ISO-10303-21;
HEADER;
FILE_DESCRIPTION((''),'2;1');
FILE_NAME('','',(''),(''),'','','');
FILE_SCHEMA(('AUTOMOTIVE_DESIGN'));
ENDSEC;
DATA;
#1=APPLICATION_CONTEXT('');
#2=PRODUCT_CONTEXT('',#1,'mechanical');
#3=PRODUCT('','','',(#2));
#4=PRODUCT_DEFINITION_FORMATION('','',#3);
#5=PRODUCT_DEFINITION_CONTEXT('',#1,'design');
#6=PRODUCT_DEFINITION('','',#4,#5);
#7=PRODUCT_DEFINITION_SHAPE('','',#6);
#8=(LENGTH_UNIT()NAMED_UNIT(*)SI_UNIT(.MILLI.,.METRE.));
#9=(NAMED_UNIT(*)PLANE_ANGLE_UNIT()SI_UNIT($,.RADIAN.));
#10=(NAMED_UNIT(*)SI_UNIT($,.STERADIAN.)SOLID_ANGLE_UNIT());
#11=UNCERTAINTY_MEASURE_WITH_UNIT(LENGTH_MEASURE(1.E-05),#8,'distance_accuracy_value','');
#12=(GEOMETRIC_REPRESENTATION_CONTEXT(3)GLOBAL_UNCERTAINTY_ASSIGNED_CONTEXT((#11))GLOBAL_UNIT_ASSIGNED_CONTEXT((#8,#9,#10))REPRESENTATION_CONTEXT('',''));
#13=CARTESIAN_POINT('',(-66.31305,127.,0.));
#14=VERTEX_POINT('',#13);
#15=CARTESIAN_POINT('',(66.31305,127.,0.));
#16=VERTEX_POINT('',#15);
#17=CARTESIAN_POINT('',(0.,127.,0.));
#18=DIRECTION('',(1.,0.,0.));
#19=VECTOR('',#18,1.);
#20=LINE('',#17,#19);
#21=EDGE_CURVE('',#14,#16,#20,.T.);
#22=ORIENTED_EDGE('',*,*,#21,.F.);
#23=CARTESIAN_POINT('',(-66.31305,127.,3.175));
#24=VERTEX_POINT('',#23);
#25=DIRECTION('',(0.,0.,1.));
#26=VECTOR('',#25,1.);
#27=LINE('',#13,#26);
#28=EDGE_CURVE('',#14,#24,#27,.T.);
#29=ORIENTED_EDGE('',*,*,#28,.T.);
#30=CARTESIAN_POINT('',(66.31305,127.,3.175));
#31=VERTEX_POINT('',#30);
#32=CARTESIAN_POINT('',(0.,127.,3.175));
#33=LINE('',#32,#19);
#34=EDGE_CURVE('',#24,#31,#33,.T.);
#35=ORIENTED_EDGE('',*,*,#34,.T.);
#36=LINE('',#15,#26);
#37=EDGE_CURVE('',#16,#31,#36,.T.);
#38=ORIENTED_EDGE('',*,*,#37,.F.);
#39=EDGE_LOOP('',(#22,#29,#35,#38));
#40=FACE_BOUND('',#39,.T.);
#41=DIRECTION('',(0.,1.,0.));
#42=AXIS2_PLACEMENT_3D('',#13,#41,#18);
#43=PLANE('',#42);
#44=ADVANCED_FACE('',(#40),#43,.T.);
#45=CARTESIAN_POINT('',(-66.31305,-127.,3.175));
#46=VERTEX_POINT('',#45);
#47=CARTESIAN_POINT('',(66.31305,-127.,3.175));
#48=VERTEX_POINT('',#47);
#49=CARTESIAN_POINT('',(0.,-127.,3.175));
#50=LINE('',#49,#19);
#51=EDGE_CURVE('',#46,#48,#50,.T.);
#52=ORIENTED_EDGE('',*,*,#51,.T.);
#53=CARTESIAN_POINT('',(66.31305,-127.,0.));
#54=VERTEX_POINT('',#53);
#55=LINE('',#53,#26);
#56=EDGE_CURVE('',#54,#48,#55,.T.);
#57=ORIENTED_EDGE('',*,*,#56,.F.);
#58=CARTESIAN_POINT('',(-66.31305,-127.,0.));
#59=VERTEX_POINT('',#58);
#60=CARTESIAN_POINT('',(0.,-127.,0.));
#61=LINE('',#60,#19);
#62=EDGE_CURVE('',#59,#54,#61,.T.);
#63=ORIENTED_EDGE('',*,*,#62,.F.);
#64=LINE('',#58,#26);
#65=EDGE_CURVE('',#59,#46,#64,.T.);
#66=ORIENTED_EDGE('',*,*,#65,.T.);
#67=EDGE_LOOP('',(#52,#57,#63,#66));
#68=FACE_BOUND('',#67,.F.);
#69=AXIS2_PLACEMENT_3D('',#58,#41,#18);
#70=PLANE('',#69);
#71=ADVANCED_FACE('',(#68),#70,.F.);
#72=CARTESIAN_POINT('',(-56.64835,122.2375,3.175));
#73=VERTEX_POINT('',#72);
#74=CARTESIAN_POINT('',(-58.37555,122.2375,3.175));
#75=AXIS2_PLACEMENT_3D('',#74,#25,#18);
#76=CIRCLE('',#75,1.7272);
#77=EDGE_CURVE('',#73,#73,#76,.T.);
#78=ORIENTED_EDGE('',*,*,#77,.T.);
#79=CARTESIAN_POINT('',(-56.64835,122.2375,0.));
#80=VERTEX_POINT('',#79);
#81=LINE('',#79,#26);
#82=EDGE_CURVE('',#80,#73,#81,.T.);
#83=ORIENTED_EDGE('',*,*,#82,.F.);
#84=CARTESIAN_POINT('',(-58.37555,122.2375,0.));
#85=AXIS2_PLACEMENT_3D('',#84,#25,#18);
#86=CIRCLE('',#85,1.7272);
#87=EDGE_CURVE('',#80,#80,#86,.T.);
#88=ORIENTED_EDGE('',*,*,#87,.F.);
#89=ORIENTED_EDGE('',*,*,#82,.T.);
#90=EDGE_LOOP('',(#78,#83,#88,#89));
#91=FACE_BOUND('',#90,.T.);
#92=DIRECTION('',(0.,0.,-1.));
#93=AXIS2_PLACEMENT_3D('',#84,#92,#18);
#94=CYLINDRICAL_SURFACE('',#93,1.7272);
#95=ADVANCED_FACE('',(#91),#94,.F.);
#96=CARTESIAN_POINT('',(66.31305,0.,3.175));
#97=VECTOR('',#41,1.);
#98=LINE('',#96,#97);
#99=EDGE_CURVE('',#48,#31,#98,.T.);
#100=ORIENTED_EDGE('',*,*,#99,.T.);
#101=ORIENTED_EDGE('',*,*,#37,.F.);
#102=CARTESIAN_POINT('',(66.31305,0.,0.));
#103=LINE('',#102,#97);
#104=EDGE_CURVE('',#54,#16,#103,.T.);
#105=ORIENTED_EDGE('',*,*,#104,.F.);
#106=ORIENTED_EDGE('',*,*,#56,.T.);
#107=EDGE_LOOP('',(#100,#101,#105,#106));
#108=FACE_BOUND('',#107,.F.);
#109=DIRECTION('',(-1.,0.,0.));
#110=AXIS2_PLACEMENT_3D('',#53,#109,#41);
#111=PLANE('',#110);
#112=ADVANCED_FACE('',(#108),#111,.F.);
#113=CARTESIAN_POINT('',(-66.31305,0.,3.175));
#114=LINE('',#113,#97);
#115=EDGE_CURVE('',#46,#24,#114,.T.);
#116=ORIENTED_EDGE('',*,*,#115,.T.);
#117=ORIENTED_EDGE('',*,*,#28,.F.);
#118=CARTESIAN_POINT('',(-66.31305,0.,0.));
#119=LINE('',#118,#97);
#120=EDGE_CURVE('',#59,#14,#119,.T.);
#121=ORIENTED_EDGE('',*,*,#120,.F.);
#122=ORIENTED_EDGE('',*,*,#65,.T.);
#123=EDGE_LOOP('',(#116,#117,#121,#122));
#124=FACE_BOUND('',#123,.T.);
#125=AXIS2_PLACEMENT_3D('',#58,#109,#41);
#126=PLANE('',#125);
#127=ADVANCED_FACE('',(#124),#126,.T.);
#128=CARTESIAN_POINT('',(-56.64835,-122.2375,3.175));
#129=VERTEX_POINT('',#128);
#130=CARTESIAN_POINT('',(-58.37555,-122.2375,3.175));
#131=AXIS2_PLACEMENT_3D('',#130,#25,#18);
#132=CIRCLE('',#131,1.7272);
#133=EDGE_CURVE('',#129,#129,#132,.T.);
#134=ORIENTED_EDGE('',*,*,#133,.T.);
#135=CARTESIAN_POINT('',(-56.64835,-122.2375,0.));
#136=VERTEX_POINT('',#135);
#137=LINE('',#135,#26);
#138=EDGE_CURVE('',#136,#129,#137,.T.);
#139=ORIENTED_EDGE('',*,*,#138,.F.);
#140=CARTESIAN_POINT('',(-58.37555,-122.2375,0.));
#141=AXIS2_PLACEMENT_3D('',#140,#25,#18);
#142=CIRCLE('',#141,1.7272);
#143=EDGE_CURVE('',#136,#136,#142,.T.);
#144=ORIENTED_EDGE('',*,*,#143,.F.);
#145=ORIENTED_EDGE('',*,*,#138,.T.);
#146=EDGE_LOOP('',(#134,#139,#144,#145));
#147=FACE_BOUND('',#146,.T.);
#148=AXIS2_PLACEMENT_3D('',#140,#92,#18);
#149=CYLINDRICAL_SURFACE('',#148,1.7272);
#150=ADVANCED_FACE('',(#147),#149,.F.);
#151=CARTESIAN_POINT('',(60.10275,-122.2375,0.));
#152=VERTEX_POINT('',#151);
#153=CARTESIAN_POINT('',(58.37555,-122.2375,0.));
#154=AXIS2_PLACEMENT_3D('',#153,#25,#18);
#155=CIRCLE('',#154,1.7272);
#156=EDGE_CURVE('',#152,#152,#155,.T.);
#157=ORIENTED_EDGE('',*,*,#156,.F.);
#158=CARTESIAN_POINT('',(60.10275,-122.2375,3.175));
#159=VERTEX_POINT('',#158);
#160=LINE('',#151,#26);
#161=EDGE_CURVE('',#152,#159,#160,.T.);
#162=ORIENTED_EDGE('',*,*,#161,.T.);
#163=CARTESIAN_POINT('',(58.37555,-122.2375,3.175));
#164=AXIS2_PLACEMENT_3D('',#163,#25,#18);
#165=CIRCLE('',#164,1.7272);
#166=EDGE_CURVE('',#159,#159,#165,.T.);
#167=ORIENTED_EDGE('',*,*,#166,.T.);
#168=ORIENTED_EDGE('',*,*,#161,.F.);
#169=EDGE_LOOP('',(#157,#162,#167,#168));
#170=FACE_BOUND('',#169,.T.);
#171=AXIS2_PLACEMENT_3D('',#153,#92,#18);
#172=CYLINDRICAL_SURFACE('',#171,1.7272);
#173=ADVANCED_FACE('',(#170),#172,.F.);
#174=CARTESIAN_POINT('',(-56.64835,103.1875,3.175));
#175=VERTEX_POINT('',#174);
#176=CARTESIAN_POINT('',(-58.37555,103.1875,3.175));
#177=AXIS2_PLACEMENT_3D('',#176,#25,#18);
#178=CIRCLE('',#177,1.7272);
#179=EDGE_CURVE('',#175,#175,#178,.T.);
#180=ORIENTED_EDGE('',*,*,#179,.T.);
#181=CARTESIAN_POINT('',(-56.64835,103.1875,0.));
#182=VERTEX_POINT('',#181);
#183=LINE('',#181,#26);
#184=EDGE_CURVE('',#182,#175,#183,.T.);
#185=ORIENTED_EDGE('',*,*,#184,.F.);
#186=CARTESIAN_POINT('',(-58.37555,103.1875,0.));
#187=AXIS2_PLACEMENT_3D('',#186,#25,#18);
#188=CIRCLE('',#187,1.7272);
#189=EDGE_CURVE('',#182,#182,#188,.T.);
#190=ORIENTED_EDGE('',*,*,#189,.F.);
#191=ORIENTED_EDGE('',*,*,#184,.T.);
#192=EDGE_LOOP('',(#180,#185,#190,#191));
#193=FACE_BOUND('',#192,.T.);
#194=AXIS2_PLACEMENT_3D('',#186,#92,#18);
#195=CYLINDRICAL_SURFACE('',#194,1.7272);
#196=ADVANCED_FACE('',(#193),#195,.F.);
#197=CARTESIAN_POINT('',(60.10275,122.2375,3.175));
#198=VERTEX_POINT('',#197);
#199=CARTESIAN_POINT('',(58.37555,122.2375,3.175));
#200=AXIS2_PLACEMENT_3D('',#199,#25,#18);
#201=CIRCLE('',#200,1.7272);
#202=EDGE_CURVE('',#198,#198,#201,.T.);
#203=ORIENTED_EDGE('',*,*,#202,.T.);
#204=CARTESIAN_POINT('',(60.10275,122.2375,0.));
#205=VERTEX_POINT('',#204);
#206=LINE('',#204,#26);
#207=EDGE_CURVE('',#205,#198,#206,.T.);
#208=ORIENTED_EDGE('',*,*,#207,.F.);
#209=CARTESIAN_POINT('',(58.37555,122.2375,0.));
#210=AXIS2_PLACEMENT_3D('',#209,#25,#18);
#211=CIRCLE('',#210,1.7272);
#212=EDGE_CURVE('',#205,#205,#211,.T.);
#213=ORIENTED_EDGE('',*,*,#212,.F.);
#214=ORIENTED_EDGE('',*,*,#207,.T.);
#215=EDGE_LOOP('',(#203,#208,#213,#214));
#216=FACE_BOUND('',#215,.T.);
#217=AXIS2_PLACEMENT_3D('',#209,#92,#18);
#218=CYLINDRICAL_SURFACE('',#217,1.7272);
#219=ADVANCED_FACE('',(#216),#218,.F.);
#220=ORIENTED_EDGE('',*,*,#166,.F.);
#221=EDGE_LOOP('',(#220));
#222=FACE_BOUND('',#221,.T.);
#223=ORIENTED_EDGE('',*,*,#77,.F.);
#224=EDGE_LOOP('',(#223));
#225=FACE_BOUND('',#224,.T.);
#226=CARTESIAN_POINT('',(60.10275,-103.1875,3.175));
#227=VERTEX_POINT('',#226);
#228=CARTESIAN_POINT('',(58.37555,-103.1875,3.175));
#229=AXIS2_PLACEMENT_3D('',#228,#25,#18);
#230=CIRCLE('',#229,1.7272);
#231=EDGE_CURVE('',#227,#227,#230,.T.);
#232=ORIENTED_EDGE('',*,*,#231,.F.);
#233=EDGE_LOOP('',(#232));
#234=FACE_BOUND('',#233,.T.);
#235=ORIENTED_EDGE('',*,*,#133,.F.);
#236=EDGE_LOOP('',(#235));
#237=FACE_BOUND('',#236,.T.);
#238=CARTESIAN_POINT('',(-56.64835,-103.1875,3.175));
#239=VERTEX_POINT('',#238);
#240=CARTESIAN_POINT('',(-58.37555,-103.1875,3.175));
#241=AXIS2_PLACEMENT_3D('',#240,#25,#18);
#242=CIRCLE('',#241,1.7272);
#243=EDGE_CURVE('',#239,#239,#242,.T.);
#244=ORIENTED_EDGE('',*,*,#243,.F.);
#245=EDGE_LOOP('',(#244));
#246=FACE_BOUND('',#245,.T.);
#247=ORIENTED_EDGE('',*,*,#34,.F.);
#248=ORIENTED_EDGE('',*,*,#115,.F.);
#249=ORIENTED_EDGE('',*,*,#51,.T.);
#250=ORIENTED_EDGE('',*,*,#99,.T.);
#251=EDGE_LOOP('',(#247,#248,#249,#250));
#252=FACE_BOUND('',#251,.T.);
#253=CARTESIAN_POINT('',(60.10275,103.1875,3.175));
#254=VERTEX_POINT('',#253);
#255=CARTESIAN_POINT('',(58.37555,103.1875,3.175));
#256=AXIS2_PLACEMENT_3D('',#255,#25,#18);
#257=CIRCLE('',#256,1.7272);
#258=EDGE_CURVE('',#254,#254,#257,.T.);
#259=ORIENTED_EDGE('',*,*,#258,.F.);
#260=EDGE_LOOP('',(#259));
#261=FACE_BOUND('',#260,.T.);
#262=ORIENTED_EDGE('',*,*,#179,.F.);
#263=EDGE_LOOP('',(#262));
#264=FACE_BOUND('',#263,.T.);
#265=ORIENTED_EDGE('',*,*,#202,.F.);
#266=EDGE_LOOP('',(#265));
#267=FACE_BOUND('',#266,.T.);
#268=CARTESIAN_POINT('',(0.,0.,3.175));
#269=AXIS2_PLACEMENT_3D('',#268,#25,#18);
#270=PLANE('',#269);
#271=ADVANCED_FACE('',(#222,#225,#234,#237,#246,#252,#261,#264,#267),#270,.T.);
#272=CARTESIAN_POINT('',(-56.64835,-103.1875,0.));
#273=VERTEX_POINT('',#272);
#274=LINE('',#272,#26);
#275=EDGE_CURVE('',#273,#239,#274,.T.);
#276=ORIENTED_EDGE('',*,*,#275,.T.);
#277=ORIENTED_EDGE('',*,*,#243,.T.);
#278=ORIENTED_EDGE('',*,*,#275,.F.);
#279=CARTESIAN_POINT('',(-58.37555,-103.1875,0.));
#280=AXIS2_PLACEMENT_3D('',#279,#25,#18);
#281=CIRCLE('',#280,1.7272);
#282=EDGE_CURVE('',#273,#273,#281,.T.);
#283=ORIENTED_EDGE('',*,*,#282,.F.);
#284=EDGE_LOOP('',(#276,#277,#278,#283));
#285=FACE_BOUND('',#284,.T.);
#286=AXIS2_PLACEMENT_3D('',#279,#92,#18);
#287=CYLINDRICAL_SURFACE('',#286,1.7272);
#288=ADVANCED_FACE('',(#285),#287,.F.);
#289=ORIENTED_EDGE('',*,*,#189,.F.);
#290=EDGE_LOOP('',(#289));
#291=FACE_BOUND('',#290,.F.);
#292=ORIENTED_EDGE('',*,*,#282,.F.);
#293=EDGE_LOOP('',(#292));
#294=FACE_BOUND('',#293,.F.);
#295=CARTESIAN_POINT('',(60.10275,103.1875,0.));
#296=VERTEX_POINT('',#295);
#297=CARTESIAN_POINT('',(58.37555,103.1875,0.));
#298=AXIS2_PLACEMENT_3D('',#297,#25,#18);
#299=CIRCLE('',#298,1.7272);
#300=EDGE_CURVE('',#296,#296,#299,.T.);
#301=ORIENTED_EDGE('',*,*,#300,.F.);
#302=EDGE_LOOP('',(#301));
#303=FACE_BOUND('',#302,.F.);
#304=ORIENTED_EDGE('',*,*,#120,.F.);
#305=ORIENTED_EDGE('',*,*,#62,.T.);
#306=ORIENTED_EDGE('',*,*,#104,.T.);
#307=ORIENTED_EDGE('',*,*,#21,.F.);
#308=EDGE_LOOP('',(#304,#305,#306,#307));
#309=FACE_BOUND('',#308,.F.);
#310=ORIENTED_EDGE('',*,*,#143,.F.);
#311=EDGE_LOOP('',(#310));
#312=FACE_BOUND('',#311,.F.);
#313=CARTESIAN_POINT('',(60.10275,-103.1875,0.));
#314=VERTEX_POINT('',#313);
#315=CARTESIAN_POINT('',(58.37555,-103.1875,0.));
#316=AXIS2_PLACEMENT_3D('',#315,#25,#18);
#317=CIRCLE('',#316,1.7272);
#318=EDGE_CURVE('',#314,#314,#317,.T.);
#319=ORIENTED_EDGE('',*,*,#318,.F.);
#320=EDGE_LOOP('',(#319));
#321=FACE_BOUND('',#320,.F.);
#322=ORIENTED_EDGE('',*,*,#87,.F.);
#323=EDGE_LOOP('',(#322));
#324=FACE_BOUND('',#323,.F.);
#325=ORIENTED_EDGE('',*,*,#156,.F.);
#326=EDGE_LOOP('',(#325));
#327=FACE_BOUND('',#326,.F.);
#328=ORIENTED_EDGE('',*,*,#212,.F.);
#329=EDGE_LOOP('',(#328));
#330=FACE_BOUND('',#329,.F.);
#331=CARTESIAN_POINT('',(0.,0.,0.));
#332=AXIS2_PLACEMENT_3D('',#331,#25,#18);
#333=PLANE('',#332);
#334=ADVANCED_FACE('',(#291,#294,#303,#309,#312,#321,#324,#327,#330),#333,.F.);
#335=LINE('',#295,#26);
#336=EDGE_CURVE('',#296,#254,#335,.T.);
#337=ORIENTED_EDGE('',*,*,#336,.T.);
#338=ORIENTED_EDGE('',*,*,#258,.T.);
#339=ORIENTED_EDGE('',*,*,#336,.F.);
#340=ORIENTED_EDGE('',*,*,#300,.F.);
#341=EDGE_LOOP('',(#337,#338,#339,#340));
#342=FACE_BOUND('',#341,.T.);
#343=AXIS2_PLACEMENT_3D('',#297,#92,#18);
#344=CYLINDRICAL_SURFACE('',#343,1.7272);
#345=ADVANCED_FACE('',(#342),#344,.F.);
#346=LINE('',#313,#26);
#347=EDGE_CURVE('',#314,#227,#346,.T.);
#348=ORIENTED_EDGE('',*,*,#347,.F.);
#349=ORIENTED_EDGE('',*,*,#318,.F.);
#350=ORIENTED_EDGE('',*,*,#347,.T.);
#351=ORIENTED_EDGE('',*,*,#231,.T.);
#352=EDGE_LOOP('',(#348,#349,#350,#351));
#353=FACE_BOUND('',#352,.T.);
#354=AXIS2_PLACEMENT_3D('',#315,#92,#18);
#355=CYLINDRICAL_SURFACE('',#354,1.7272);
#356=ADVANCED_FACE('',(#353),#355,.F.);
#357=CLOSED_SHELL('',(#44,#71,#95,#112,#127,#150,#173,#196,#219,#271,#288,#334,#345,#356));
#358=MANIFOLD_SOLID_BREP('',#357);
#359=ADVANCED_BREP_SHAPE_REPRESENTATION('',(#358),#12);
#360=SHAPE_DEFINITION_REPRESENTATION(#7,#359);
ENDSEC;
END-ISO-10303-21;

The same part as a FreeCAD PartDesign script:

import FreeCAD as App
import Part
import Sketcher

V = App.Vector
Q = App.Units.Quantity


def add_polygon(sketch, points):
    """Adds a closed chain of lines whose ends are joined by coincident constraints."""
    first, n = sketch.GeometryCount, len(points)
    for a, b in zip(points, points[1:] + points[:1]):
        sketch.addGeometry(Part.LineSegment(App.Vector(*a, 0), App.Vector(*b, 0)), False)
    for i in range(n):
        sketch.addConstraint(Sketcher.Constraint("Coincident", first + i, 2, first + (i + 1) % n, 1))

doc = App.newDocument("Part")
params = doc.addObject("Spreadsheet::Sheet", "Params")
for row, (alias, value) in enumerate([
    ("sketch1_height", "10 in"),
    ("sketch1_diameter", "0.136 in"),
    ("pad1_length", "0.125 in"),
], start=1):
    params.set(f"A{row}", alias)
    params.set(f"B{row}", "=" + value)
    params.setAlias(f"B{row}", alias)

body = doc.addObject("PartDesign::Body", "Body")

# Sketch on XY plane
sketch1 = body.newObject("Sketcher::SketchObject", "Sketch")
sketch1.AttachmentSupport = (doc.getObject("XY_Plane"), [""])
sketch1.MapMode = "FlatFace"
add_polygon(sketch1, [(-66.31305, 127), (-66.31305, -127), (66.31305, -127), (66.31305, 127)])  # lines 0-3
sketch1.addGeometry(Part.Circle(V(-58.37555, -122.2375, 0), V(0, 0, 1), 1.7272), False)  # 4
sketch1.addGeometry(Part.Circle(V(-58.37555, -103.1875, 0), V(0, 0, 1), 1.7272), False)  # 5
sketch1.addGeometry(Part.Circle(V(58.37555, -122.2375, 0), V(0, 0, 1), 1.7272), False)  # 6
sketch1.addGeometry(Part.Circle(V(58.37555, -103.1875, 0), V(0, 0, 1), 1.7272), False)  # 7
sketch1.addGeometry(Part.Circle(V(-58.37555, 103.1875, 0), V(0, 0, 1), 1.7272), False)  # 8
sketch1.addGeometry(Part.Circle(V(-58.37555, 122.2375, 0), V(0, 0, 1), 1.7272), False)  # 9
sketch1.addGeometry(Part.Circle(V(58.37555, 103.1875, 0), V(0, 0, 1), 1.7272), False)  # 10
sketch1.addGeometry(Part.Circle(V(58.37555, 122.2375, 0), V(0, 0, 1), 1.7272), False)  # 11
sketch1.addConstraint([
    Sketcher.Constraint("Vertical", 0),
    Sketcher.Constraint("Horizontal", 1),
    Sketcher.Constraint("Vertical", 2),
    Sketcher.Constraint("Horizontal", 3),
    Sketcher.Constraint("Equal", 4, 5),
    Sketcher.Constraint("Equal", 5, 6),
    Sketcher.Constraint("Equal", 6, 7),
    Sketcher.Constraint("Equal", 7, 8),
    Sketcher.Constraint("Equal", 8, 9),
    Sketcher.Constraint("Equal", 9, 10),
    Sketcher.Constraint("Equal", 10, 11),
    Sketcher.Constraint("Symmetric", 7, 3, 8, 3, -1, 1),
    Sketcher.Constraint("Symmetric", 6, 3, 9, 3, -1, 1),
    Sketcher.Constraint("Symmetric", 5, 3, 10, 3, -1, 1),
    Sketcher.Constraint("Symmetric", 4, 3, 11, 3, -1, 1),
    Sketcher.Constraint("Symmetric", 0, 2, 2, 2, -1, 1),
    Sketcher.Constraint("Symmetric", 4, 3, 6, 3, -2),
    Sketcher.Constraint("Symmetric", 5, 3, 7, 3, -2),
    Sketcher.Constraint("Vertical", 4, 3, 5, 3),
    Sketcher.Constraint("DistanceY", 0, 2, 0, 1, Q("10 in")),
    Sketcher.Constraint("Diameter", 4, Q("0.136 in")),
    Sketcher.Constraint("DistanceY", 4, 3, 5, 3, Q("0.75 in")),
    Sketcher.Constraint("DistanceX", 1, 1, 1, 2, Q("5.2215 in")),
    Sketcher.Constraint("DistanceY", 4, 3, -1, 1, Q("4.8125 in")),
    Sketcher.Constraint("DistanceX", 0, 2, 4, 3, Q("0.3125 in")),
])
sketch1.setExpression("Constraints[23]", "Params.sketch1_height")
sketch1.setExpression("Constraints[24]", "Params.sketch1_diameter")
pad1 = body.newObject("PartDesign::Pad", "Pad")
pad1.Profile = sketch1
pad1.setExpression("Length", "Params.pad1_length")

doc.recompute()
